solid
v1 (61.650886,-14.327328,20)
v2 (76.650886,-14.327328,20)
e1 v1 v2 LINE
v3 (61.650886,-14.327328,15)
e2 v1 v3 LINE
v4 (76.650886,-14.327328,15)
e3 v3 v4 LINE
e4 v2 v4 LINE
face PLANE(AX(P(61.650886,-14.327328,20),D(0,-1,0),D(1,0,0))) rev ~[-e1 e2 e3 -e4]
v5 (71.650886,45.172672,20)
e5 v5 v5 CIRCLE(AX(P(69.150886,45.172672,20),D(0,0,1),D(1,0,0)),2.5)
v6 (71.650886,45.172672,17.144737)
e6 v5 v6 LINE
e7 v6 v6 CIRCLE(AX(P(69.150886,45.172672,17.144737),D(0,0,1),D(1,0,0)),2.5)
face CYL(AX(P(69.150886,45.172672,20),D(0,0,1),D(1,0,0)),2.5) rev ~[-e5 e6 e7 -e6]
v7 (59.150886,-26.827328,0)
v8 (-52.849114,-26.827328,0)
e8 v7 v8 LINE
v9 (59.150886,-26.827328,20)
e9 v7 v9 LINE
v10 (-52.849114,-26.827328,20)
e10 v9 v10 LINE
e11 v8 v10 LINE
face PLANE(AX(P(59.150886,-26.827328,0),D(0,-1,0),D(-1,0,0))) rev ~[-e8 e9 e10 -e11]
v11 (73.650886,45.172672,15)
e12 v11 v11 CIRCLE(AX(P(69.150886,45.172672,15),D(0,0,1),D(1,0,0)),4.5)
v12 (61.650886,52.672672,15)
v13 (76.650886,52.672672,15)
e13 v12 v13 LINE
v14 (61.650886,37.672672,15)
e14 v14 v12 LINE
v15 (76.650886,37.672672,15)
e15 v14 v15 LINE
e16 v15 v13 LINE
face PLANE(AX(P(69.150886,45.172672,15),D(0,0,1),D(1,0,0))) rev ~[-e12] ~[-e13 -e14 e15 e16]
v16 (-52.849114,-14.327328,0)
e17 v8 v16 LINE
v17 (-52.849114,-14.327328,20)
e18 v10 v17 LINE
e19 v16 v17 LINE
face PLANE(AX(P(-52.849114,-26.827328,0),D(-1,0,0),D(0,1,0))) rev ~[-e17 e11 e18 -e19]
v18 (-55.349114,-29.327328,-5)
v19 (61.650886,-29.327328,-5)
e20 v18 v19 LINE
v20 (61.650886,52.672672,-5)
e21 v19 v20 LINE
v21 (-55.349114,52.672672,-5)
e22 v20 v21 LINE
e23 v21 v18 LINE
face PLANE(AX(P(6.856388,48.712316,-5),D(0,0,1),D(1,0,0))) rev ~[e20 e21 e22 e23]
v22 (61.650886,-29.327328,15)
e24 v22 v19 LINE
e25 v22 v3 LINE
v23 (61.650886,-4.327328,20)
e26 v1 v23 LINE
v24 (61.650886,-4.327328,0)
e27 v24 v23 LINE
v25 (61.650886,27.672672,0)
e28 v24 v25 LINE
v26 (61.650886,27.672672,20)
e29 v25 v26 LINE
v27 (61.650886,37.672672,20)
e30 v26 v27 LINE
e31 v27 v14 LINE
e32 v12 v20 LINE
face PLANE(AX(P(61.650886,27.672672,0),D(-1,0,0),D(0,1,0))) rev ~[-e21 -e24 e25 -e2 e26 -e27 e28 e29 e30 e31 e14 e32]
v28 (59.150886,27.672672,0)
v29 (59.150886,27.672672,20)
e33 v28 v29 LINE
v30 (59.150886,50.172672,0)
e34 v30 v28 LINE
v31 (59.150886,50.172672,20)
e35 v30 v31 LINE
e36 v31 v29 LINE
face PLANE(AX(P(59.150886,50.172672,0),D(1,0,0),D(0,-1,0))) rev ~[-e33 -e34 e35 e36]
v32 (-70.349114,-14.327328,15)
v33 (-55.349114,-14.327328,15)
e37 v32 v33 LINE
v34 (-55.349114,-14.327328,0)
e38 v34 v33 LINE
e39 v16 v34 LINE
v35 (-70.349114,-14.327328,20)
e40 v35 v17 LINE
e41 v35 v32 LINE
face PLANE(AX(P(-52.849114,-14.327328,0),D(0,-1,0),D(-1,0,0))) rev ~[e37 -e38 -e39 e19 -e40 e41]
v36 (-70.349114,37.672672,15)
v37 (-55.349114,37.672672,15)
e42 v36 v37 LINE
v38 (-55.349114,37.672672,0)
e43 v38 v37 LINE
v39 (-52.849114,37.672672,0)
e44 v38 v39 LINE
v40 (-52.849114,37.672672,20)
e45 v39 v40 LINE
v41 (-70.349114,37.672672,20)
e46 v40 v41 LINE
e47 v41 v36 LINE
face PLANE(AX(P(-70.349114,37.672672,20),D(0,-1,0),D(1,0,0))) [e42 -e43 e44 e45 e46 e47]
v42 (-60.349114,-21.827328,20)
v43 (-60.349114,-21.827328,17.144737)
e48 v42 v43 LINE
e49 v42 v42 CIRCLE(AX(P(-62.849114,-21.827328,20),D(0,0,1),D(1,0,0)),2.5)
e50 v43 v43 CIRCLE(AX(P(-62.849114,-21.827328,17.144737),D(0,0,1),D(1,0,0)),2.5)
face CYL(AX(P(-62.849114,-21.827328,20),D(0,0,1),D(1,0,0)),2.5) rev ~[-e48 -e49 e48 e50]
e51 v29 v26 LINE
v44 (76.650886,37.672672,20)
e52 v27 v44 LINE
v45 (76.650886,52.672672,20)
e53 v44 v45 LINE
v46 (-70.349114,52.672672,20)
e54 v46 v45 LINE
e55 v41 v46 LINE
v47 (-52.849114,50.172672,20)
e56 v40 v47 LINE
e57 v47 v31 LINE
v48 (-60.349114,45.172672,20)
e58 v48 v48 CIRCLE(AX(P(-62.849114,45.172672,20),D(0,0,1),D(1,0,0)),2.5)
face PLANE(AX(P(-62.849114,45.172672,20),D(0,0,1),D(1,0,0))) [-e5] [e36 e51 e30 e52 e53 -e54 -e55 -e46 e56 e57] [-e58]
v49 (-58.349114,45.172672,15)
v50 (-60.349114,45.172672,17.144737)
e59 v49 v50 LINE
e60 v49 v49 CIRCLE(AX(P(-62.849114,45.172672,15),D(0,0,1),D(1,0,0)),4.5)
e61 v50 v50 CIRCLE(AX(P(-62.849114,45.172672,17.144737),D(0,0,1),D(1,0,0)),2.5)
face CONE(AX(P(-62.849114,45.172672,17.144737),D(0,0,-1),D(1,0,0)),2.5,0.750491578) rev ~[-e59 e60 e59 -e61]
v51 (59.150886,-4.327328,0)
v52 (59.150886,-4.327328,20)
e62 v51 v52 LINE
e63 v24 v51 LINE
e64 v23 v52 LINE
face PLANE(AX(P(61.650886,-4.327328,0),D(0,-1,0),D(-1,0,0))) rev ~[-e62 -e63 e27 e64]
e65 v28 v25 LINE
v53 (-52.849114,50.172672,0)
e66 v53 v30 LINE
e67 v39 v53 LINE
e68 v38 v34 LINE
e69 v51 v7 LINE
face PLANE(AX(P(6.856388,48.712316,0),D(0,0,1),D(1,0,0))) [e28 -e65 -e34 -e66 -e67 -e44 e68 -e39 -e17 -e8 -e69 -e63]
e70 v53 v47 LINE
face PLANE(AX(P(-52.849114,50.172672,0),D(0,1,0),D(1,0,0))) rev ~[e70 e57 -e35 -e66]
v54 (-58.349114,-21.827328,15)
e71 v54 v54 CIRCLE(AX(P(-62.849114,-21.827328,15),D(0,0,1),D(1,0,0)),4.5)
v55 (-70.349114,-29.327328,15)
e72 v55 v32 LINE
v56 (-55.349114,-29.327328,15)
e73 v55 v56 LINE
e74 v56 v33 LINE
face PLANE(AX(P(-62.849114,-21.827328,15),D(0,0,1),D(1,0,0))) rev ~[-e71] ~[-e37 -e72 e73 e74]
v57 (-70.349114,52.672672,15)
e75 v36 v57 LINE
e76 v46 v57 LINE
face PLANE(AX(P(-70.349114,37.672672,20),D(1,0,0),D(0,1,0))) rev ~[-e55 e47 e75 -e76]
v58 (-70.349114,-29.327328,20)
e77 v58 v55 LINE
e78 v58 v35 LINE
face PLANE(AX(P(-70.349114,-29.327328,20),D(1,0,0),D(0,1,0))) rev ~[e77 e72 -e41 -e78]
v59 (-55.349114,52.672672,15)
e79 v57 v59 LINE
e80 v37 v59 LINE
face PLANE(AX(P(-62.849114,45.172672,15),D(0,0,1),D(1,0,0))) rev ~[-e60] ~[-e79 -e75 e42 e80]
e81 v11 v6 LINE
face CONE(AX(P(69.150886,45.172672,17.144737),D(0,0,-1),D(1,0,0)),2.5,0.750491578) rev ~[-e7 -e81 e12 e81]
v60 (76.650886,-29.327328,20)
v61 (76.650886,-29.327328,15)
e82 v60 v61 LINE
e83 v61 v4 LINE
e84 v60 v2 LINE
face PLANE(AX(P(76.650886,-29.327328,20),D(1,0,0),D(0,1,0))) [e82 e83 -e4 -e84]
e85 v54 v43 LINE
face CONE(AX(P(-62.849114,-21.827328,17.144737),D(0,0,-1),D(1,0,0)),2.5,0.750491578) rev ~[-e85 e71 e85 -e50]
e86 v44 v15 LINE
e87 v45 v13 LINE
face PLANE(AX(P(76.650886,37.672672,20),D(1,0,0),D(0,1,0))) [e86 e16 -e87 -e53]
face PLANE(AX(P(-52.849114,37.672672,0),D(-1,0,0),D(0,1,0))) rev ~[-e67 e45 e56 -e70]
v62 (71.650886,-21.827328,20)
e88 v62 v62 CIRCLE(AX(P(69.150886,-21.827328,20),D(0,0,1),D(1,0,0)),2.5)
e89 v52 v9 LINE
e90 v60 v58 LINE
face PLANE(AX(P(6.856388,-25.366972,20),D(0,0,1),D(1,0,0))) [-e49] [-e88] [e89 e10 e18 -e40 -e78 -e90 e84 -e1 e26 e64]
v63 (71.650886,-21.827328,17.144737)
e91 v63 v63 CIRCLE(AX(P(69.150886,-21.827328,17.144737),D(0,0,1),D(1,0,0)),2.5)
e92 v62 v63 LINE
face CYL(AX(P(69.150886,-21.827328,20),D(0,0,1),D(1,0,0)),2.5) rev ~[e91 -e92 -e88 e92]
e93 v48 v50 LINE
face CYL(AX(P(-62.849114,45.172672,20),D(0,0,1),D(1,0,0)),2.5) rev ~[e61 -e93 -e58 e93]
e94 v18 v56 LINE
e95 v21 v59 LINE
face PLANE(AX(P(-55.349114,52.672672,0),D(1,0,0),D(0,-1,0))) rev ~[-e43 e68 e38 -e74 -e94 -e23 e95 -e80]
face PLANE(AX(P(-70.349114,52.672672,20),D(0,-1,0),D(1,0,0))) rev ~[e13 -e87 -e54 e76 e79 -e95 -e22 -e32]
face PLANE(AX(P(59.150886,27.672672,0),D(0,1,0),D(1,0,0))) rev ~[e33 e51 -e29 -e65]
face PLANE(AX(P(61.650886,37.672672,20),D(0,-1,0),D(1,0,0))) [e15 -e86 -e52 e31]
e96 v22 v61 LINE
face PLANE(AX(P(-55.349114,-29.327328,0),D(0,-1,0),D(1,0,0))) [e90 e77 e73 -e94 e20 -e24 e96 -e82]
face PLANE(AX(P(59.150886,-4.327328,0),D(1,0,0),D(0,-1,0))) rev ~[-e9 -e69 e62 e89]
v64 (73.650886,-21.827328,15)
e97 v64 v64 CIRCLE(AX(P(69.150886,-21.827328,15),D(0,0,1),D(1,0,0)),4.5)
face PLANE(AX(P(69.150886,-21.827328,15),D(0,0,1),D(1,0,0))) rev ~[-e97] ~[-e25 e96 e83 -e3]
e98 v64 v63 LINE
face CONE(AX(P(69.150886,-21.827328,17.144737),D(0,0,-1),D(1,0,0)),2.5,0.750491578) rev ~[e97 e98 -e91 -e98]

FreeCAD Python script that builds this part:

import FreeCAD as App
import Part
import Sketcher
Q = App.Units.Quantity


def edges_at(feature, points):
    """Names of the edges that pass closest to the given points."""
    edges = feature.Shape.Edges
    near = lambda p: min(range(len(edges)), key=lambda i: edges[i].distToShape(Part.Vertex(*p))[0])
    return sorted({f"Edge{near(p) + 1}" for p in points})


def add_polygon(sketch, points):
    """Adds a closed chain of lines whose ends are joined by coincident constraints."""
    first, n = sketch.GeometryCount, len(points)
    for a, b in zip(points, points[1:] + points[:1]):
        sketch.addGeometry(Part.LineSegment(App.Vector(*a, 0), App.Vector(*b, 0)), False)
    for i in range(n):
        sketch.addConstraint(Sketcher.Constraint("Coincident", first + i, 2, first + (i + 1) % n, 1))

doc = App.newDocument("Part")
body = doc.addObject("PartDesign::Body", "Body")

# Sketch on XY plane
sketch1 = body.newObject("Sketcher::SketchObject", "Sketch")
sketch1.AttachmentSupport = (doc.getObject("XY_Plane"), [""])
sketch1.MapMode = "FlatFace"
add_polygon(sketch1, [(62, 53), (-55, 53), (-55, -29), (62, -29)])  # lines 0-3
sketch1.addConstraint([
    Sketcher.Constraint("Horizontal", 0),
    Sketcher.Constraint("Vertical", 1),
    Sketcher.Constraint("Horizontal", 2),
    Sketcher.Constraint("Vertical", 3),
    Sketcher.Constraint("DistanceX", 0, 2, 0, 1, Q("117 mm")),
    Sketcher.Constraint("DistanceY", 1, 2, 1, 1, Q("82 mm")),
    Sketcher.Constraint("DistanceY", -1, 1, 0, 2, Q("52.672672 mm")),
    Sketcher.Constraint("DistanceX", 0, 2, -1, 1, Q("55.349114 mm")),
])
pad1 = body.newObject("PartDesign::Pad", "Pad")
pad1.Profile = sketch1
pad1.Length = 5
pad1.Reversed = True

# Sketch on XY plane
sketch2 = body.newObject("Sketcher::SketchObject", "Sketch001")
sketch2.AttachmentSupport = (doc.getObject("XY_Plane"), [""])
sketch2.MapMode = "FlatFace"
add_polygon(sketch2, [(61.7, 52.7), (-55.3, 52.7), (-55.3, 37.7), (-52.8, 37.7), (-52.8, 50.2), (59.2, 50.2), (59.2, 27.7), (61.7, 27.7)])  # lines 0-7
add_polygon(sketch2, [(-52.8, -14.3), (-55.3, -14.3), (-55.3, -29.3), (61.7, -29.3), (61.7, -4.3), (59.2, -4.3), (59.2, -26.8), (-52.8, -26.8)])  # lines 8-15
sketch2.addConstraint([
    Sketcher.Constraint("Horizontal", 0),
    Sketcher.Constraint("Vertical", 1),
    Sketcher.Constraint("Horizontal", 2),
    Sketcher.Constraint("Vertical", 3),
    Sketcher.Constraint("Horizontal", 4),
    Sketcher.Constraint("Vertical", 5),
    Sketcher.Constraint("Horizontal", 6),
    Sketcher.Constraint("Vertical", 7),
    Sketcher.Constraint("Horizontal", 8),
    Sketcher.Constraint("Vertical", 9),
    Sketcher.Constraint("Horizontal", 10),
    Sketcher.Constraint("Vertical", 11),
    Sketcher.Constraint("Horizontal", 12),
    Sketcher.Constraint("Vertical", 13),
    Sketcher.Constraint("Horizontal", 14),
    Sketcher.Constraint("Vertical", 15),
    Sketcher.Constraint("Vertical", 1, 2, 8, 2),
    Sketcher.Constraint("Vertical", 7, 2, 10, 2),
    Sketcher.Constraint("Vertical", 5, 2, 12, 2),
    Sketcher.Constraint("Vertical", 3, 2, 14, 2),
    Sketcher.Constraint("Equal", 2, 6),
    Sketcher.Constraint("Equal", 1, 9),
    Sketcher.Constraint("Equal", 7, 11),
    Sketcher.Constraint("Equal", 5, 13),
    Sketcher.Constraint("DistanceX", 0, 2, 0, 1, Q("117 mm")),
    Sketcher.Constraint("DistanceX", 4, 1, 4, 2, Q("112 mm")),
    Sketcher.Constraint("DistanceY", 1, 2, 1, 1, Q("15 mm")),
    Sketcher.Constraint("DistanceY", 7, 1, 7, 2, Q("25 mm")),
    Sketcher.Constraint("DistanceY", 3, 1, 3, 2, Q("12.5 mm")),
    Sketcher.Constraint("DistanceY", 8, 2, 1, 2, Q("52 mm")),
    Sketcher.Constraint("DistanceY", -1, 1, 0, 2, Q("52.672672 mm")),
    Sketcher.Constraint("DistanceX", 0, 2, -1, 1, Q("55.349114 mm")),
])
pad2 = body.newObject("PartDesign::Pad", "Pad001")
pad2.Profile = sketch2
pad2.Length = 20

# Sketch on XY plane
sketch3 = body.newObject("Sketcher::SketchObject", "Sketch002")
sketch3.AttachmentSupport = (doc.getObject("XY_Plane"), [""])
sketch3.MapMode = "FlatFace"
sketch3.AttachmentOffset = App.Placement(App.Vector(0, 0, 20), App.Rotation())
add_polygon(sketch3, [(-70.3, 52.7), (-70.3, 37.7), (-55.3, 37.7), (-55.3, 52.7)])  # lines 0-3
sketch3.addGeometry(Part.Circle(App.Vector(-62.8, 45.2, 0), App.Vector(0, 0, 1), 2.5), False)  # 4
add_polygon(sketch3, [(61.7, 52.7), (61.7, 37.7), (76.7, 37.7), (76.7, 52.7)])  # lines 5-8
sketch3.addGeometry(Part.Circle(App.Vector(69.2, 45.2, 0), App.Vector(0, 0, 1), 2.5), False)  # 9
add_polygon(sketch3, [(-70.3, -14.3), (-70.3, -29.3), (-55.3, -29.3), (-55.3, -14.3)])  # lines 10-13
sketch3.addGeometry(Part.Circle(App.Vector(-62.8, -21.8, 0), App.Vector(0, 0, 1), 2.5), False)  # 14
add_polygon(sketch3, [(61.7, -14.3), (61.7, -29.3), (76.7, -29.3), (76.7, -14.3)])  # lines 15-18
sketch3.addGeometry(Part.Circle(App.Vector(69.2, -21.8, 0), App.Vector(0, 0, 1), 2.5), False)  # 19
sketch3.addConstraint([
    Sketcher.Constraint("Vertical", 0),
    Sketcher.Constraint("Horizontal", 1),
    Sketcher.Constraint("Vertical", 2),
    Sketcher.Constraint("Horizontal", 3),
    Sketcher.Constraint("Vertical", 5),
    Sketcher.Constraint("Horizontal", 6),
    Sketcher.Constraint("Vertical", 7),
    Sketcher.Constraint("Horizontal", 8),
    Sketcher.Constraint("Vertical", 10),
    Sketcher.Constraint("Horizontal", 11),
    Sketcher.Constraint("Vertical", 12),
    Sketcher.Constraint("Horizontal", 13),
    Sketcher.Constraint("Vertical", 15),
    Sketcher.Constraint("Horizontal", 16),
    Sketcher.Constraint("Vertical", 17),
    Sketcher.Constraint("Horizontal", 18),
    Sketcher.Constraint("Equal", 4, 9),
    Sketcher.Constraint("Equal", 9, 14),
    Sketcher.Constraint("Equal", 14, 19),
    Sketcher.Constraint("Horizontal", 4, 3, 9, 3),
    Sketcher.Constraint("Horizontal", 14, 3, 19, 3),
    Sketcher.Constraint("Horizontal", 1, 2, 5, 2),
    Sketcher.Constraint("Horizontal", 3, 2, 7, 2),
    Sketcher.Constraint("Horizontal", 11, 2, 15, 2),
    Sketcher.Constraint("Horizontal", 13, 2, 17, 2),
    Sketcher.Constraint("Vertical", 4, 3, 14, 3),
    Sketcher.Constraint("Vertical", 9, 3, 19, 3),
    Sketcher.Constraint("Vertical", 3, 2, 10, 2),
    Sketcher.Constraint("Vertical", 2, 2, 11, 2),
    Sketcher.Constraint("Vertical", 8, 2, 15, 2),
    Sketcher.Constraint("Vertical", 7, 2, 16, 2),
    Sketcher.Constraint("Equal", 3, 6),
    Sketcher.Constraint("Equal", 18, 0),
    Sketcher.Constraint("Equal", 7, 10),
    Sketcher.Constraint("Diameter", 4, Q("5 mm")),
    Sketcher.Constraint("DistanceX", 1, 1, 1, 2, Q("15 mm")),
    Sketcher.Constraint("DistanceX", 4, 3, 9, 3, Q("132 mm")),
    Sketcher.Constraint("DistanceY", 14, 3, 4, 3, Q("67 mm")),
    Sketcher.Constraint("DistanceX", 1, 2, 5, 2, Q("117 mm")),
    Sketcher.Constraint("DistanceY", 10, 2, 0, 2, Q("67 mm")),
    Sketcher.Constraint("DistanceX", 0, 2, 4, 3, Q("7.5 mm")),
    Sketcher.Constraint("DistanceY", 0, 2, 4, 3, Q("7.5 mm")),
    Sketcher.Constraint("DistanceY", -1, 1, 4, 3, Q("45.172672 mm")),
    Sketcher.Constraint("DistanceX", 4, 3, -1, 1, Q("62.849114 mm")),
])
pad3 = body.newObject("PartDesign::Pad", "Pad002")
pad3.Profile = sketch3
pad3.Length = 5
pad3.Reversed = True
doc.recompute()

chamfer = body.newObject("PartDesign::Chamfer", "Chamfer")
chamfer.Base = (pad3, edges_at(pad3, [(66.651, -21.827, 15)]))
chamfer.ChamferType = "Two distances"
chamfer.Size = 2
chamfer.Size2 = 2.144737
doc.recompute()

chamfer2 = body.newObject("PartDesign::Chamfer", "Chamfer001")
chamfer2.Base = (chamfer, edges_at(chamfer, [(66.651, 45.173, 15)]))
chamfer2.ChamferType = "Two distances"
chamfer2.Size = 2
chamfer2.Size2 = 2.144737
doc.recompute()

chamfer3 = body.newObject("PartDesign::Chamfer", "Chamfer002")
chamfer3.Base = (chamfer2, edges_at(chamfer2, [(-65.349, -21.827, 15)]))
chamfer3.ChamferType = "Two distances"
chamfer3.Size = 2
chamfer3.Size2 = 2.144737
doc.recompute()

chamfer4 = body.newObject("PartDesign::Chamfer", "Chamfer003")
chamfer4.Base = (chamfer3, edges_at(chamfer3, [(-65.349, 45.173, 15)]))
chamfer4.ChamferType = "Two distances"
chamfer4.Size = 2
chamfer4.Size2 = 2.144737

doc.recompute()
